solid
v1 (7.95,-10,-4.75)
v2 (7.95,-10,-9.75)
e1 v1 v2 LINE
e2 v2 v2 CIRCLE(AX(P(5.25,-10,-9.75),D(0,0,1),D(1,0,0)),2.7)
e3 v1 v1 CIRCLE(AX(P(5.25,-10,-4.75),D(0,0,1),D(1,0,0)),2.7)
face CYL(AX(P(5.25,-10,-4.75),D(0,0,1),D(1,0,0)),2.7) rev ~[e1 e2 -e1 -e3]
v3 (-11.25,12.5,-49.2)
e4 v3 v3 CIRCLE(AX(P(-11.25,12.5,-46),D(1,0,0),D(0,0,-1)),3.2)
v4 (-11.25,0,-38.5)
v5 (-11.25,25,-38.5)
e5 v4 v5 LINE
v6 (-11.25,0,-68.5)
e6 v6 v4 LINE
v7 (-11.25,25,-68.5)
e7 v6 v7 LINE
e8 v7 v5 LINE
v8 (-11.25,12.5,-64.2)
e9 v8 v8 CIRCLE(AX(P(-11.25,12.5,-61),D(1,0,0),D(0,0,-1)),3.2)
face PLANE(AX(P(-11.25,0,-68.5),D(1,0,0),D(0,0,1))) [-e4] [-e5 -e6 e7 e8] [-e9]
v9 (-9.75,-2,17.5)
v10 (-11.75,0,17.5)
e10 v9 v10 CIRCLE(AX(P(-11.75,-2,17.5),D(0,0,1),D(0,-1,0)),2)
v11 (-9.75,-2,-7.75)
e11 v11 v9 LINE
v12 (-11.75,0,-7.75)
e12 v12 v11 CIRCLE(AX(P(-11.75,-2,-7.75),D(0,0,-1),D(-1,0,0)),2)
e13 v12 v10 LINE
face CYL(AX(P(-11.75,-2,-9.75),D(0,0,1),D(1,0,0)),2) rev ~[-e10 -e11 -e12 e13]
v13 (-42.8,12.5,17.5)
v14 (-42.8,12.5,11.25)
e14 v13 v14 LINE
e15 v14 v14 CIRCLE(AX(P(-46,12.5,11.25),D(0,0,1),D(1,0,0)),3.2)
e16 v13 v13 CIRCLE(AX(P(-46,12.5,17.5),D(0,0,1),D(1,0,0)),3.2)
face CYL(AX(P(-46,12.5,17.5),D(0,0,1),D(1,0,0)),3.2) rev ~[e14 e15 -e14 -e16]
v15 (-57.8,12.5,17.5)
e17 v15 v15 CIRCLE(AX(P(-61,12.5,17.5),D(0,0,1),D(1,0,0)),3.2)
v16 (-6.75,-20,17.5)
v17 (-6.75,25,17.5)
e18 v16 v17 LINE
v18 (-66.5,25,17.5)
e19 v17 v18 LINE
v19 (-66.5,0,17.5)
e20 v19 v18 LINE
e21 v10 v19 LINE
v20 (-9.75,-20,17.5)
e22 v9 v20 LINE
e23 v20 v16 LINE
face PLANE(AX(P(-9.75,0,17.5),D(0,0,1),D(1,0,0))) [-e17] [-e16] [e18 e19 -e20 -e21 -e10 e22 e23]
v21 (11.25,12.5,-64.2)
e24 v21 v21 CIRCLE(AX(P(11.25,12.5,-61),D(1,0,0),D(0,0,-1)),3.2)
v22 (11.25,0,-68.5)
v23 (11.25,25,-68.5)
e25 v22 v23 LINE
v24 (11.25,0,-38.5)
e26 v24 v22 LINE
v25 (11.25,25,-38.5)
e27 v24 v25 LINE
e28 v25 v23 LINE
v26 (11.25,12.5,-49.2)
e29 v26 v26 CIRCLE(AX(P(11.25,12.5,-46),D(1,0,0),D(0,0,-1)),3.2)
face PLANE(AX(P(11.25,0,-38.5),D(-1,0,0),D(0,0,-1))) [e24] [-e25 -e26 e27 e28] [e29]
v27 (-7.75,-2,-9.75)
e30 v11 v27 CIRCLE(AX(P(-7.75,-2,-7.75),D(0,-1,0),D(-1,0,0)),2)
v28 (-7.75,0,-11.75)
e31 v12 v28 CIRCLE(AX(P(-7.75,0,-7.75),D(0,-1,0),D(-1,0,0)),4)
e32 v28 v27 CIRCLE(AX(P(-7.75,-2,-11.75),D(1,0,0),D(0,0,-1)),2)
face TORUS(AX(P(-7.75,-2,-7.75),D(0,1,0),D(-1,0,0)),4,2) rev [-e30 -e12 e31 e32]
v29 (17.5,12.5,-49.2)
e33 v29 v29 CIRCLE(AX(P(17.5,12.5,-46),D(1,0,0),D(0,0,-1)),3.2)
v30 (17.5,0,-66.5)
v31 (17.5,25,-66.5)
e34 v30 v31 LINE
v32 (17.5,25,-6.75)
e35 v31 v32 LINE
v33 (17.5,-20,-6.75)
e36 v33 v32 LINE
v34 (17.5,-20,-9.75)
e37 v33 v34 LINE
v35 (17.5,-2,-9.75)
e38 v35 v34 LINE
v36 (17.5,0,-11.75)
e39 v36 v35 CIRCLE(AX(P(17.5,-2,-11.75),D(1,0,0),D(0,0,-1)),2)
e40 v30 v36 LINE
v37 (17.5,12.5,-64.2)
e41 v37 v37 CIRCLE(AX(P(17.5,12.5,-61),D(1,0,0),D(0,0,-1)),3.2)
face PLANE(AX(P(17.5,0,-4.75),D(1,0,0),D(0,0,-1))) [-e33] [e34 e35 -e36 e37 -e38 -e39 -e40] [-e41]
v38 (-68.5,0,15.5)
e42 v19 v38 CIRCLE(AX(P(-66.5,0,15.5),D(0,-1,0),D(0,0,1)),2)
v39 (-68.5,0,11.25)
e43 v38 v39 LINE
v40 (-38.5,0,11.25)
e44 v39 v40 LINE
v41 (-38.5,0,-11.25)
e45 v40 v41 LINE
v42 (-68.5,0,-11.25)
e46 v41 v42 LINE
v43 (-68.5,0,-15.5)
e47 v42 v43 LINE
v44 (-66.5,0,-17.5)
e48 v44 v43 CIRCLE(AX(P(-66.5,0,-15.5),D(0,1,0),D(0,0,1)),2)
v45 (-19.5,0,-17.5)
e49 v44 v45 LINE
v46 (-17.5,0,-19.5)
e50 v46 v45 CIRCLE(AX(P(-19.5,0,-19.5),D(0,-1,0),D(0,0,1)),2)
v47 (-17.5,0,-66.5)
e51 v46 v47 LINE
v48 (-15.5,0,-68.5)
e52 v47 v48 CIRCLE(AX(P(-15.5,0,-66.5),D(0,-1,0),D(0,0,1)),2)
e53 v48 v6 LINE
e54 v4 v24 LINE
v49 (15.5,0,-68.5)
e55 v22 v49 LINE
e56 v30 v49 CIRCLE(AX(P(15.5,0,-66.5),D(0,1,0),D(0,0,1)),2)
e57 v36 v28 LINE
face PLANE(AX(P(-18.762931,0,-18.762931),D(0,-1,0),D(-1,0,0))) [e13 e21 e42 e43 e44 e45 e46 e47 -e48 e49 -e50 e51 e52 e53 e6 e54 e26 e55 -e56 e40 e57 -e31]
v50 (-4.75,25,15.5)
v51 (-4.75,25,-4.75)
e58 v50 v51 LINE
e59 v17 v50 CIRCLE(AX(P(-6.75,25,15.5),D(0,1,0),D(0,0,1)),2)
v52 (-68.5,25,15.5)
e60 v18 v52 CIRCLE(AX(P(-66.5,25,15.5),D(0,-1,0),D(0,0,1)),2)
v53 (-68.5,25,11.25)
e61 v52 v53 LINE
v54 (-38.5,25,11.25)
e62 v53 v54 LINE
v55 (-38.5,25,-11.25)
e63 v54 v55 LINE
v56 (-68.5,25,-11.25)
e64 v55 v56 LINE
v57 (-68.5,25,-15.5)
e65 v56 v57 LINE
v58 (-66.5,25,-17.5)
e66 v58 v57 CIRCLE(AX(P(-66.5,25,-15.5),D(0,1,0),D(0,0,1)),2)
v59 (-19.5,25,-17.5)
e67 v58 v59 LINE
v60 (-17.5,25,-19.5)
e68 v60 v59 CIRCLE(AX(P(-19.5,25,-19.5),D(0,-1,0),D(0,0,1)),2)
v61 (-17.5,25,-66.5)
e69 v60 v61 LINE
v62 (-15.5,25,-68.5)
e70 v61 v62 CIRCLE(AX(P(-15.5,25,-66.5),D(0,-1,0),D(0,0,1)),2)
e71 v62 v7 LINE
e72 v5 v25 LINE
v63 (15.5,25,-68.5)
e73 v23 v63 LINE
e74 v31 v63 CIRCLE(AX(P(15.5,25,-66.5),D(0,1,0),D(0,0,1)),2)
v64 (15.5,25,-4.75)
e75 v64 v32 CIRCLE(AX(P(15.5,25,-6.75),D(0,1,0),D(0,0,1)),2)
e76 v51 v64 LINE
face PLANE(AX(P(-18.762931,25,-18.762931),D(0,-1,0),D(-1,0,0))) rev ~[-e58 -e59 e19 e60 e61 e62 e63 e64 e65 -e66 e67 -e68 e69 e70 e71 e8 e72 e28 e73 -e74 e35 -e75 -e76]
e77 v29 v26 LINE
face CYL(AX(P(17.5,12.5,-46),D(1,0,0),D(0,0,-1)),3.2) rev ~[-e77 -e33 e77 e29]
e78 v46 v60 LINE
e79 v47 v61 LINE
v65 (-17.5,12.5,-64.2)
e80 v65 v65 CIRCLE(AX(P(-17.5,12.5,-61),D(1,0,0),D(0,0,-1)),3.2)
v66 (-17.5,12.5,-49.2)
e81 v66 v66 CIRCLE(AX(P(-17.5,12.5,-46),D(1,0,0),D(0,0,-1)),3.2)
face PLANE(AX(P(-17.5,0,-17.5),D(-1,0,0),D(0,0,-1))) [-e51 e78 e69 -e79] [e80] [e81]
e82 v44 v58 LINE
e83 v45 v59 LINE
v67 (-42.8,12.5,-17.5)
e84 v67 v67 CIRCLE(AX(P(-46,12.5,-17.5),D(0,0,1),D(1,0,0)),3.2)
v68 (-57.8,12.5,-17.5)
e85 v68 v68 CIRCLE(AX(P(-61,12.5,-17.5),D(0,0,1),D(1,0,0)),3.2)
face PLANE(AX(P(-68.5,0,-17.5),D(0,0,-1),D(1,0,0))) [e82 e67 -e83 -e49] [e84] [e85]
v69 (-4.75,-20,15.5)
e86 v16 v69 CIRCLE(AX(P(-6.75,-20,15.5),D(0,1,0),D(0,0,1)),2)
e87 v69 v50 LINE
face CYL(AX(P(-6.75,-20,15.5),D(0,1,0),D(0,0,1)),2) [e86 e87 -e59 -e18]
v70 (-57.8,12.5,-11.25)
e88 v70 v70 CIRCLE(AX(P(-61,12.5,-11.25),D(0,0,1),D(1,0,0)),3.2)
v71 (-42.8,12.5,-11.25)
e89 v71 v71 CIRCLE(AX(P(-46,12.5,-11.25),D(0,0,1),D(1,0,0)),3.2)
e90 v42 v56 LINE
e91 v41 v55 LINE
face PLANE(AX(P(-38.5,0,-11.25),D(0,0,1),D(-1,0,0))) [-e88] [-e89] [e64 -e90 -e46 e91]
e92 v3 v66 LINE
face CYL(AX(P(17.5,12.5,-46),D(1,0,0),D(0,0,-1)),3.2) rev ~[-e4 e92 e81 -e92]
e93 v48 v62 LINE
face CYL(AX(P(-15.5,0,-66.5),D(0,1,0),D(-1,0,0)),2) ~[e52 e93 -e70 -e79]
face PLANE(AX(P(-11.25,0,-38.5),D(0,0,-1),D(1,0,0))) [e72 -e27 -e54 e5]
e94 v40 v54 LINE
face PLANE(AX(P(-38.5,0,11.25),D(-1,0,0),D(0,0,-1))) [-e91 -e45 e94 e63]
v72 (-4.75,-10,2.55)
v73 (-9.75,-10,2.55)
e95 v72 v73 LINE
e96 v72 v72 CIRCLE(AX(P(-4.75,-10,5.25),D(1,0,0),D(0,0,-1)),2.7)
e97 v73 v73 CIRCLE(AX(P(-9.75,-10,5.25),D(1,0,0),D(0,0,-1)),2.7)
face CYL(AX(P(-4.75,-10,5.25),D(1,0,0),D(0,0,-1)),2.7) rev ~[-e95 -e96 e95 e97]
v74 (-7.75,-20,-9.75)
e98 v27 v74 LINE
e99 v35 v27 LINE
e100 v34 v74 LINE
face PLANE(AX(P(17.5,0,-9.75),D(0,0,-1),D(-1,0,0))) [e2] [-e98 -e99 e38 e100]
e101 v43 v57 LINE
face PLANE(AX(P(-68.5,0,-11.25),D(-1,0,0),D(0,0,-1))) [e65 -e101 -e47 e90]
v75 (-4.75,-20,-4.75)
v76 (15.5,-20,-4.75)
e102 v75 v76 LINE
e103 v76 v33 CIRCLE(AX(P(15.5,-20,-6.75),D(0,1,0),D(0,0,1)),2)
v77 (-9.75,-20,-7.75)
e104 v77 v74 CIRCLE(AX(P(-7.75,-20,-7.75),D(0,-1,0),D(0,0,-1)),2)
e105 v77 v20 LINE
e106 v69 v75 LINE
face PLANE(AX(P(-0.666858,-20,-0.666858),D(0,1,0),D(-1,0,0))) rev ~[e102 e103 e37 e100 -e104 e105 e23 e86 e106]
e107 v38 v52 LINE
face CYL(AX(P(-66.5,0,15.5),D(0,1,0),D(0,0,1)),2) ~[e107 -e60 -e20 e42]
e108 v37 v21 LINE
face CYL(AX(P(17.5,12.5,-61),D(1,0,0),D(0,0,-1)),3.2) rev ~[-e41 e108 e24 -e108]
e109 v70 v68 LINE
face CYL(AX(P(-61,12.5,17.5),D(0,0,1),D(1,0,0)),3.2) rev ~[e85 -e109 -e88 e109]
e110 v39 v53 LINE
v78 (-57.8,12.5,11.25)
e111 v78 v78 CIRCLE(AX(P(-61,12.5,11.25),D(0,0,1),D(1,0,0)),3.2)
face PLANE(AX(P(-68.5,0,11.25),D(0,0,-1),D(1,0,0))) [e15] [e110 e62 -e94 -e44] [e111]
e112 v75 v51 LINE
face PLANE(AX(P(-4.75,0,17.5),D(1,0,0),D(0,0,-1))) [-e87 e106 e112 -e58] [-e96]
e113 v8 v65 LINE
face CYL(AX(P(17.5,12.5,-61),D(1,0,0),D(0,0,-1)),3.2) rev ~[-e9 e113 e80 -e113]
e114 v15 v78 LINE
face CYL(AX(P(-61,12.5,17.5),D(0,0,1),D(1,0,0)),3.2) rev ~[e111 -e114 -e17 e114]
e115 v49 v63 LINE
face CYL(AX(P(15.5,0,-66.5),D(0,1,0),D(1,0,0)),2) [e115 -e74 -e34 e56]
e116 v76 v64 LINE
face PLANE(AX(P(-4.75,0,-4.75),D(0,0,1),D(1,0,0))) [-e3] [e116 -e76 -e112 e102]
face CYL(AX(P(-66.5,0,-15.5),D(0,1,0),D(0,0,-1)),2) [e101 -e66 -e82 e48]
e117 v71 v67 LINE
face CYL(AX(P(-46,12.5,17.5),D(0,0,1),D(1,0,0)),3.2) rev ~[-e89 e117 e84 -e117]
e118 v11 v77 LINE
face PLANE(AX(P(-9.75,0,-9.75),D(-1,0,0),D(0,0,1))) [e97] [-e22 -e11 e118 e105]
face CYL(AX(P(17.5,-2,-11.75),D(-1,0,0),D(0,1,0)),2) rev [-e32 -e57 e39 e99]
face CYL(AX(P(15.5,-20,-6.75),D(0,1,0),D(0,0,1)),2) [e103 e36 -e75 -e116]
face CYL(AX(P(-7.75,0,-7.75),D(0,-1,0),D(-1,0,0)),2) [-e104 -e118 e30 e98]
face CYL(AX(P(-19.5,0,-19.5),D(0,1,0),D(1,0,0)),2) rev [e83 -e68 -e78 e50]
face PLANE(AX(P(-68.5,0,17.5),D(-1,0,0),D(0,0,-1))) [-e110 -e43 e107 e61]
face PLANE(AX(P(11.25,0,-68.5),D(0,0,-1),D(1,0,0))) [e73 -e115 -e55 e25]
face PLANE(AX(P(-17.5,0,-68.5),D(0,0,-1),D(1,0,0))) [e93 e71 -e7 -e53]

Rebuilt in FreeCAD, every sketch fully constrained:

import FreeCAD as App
import Part
import Sketcher
Q = App.Units.Quantity


def edges_at(feature, points):
    """Names of the edges that pass closest to the given points."""
    edges = feature.Shape.Edges
    near = lambda p: min(range(len(edges)), key=lambda i: edges[i].distToShape(Part.Vertex(*p))[0])
    return sorted({f"Edge{near(p) + 1}" for p in points})


def add_polygon(sketch, points):
    """Adds a closed chain of lines whose ends are joined by coincident constraints."""
    first, n = sketch.GeometryCount, len(points)
    for a, b in zip(points, points[1:] + points[:1]):
        sketch.addGeometry(Part.LineSegment(App.Vector(*a, 0), App.Vector(*b, 0)), False)
    for i in range(n):
        sketch.addConstraint(Sketcher.Constraint("Coincident", first + i, 2, first + (i + 1) % n, 1))

doc = App.newDocument("Part")
body = doc.addObject("PartDesign::Body", "Body")

# Sketch on XZ plane
sketch1 = body.newObject("Sketcher::SketchObject", "Sketch")
sketch1.AttachmentSupport = (doc.getObject("XZ_Plane"), [""])
sketch1.MapMode = "FlatFace"
add_polygon(sketch1, [(-11.25, -68.5), (-17.5, -68.5), (-17.5, -17.5), (-68.5, -17.5), (-68.5, -11.25), (-38.5, -11.25), (-38.5, 11.25), (-68.5, 11.25), (-68.5, 17.5), (17.5, 17.5), (17.5, -68.5), (11.25, -68.5), (11.25, -38.5), (-11.25, -38.5)])  # lines 0-13
sketch1.addConstraint(Sketcher.Constraint("Horizontal", 0))
sketch1.addConstraint(Sketcher.Constraint("Vertical", 1))
sketch1.addConstraint(Sketcher.Constraint("Horizontal", 2))
sketch1.addConstraint(Sketcher.Constraint("Vertical", 3))
sketch1.addConstraint(Sketcher.Constraint("Horizontal", 4))
sketch1.addConstraint(Sketcher.Constraint("Vertical", 5))
sketch1.addConstraint(Sketcher.Constraint("Horizontal", 6))
sketch1.addConstraint(Sketcher.Constraint("Vertical", 7))
sketch1.addConstraint(Sketcher.Constraint("Horizontal", 8))
sketch1.addConstraint(Sketcher.Constraint("Vertical", 9))
sketch1.addConstraint(Sketcher.Constraint("Horizontal", 10))
sketch1.addConstraint(Sketcher.Constraint("Vertical", 11))
sketch1.addConstraint(Sketcher.Constraint("Horizontal", 12))
sketch1.addConstraint(Sketcher.Constraint("Vertical", 13))
sketch1.addConstraint(Sketcher.Constraint("Symmetric", 1, 2, 8, 2, -1, 1))
sketch1.addConstraint(Sketcher.Constraint("Symmetric", 10, 2, 13, 2, -2))
sketch1.addConstraint(Sketcher.Constraint("Symmetric", 3, 2, 6, 2, -1))
sketch1.addConstraint(Sketcher.Constraint("Equal", 2, 1))
sketch1.addConstraint(Sketcher.Constraint("Equal", 10, 3))
sketch1.addConstraint(Sketcher.Constraint("Equal", 12, 5))
sketch1.addConstraint(Sketcher.Constraint("Equal", 6, 11))
sketch1.addConstraint(Sketcher.Constraint("DistanceX", 2, 2, 2, 1, Q("51 mm")))
sketch1.addConstraint(Sketcher.Constraint("DistanceX", 4, 1, 4, 2, Q("30 mm")))
sketch1.addConstraint(Sketcher.Constraint("DistanceX", 8, 1, 8, 2, Q("86 mm")))
sketch1.addConstraint(Sketcher.Constraint("DistanceX", 12, 2, 12, 1, Q("22.5 mm")))
pad1 = body.newObject("PartDesign::Pad", "Pad")
pad1.Profile = sketch1
pad1.Length = 25
pad1.Reversed = True

# Sketch on YZ plane
sketch2 = body.newObject("Sketcher::SketchObject", "Sketch001")
sketch2.AttachmentSupport = (doc.getObject("YZ_Plane"), [""])
sketch2.MapMode = "FlatFace"
sketch2.AttachmentOffset = App.Placement(App.Vector(0, 0, 17.5), App.Rotation())
sketch2.addGeometry(Part.Circle(App.Vector(12.5, -61, 0), App.Vector(0, 0, 1), 3.2), False)
sketch2.addGeometry(Part.Circle(App.Vector(12.5, -46, 0), App.Vector(0, 0, 1), 3.2), False)
sketch2.addConstraint(Sketcher.Constraint("Equal", 0, 1))
sketch2.addConstraint(Sketcher.Constraint("Vertical", 0, 3, 1, 3))
sketch2.addConstraint(Sketcher.Constraint("Diameter", 0, Q("6.4 mm")))
sketch2.addConstraint(Sketcher.Constraint("DistanceY", 0, 3, -1, 1, Q("61 mm")))
sketch2.addConstraint(Sketcher.Constraint("DistanceY", 1, 3, -1, 1, Q("46 mm")))
sketch2.addConstraint(Sketcher.Constraint("DistanceX", -1, 1, 0, 3, Q("12.5 mm")))
pocket1 = body.newObject("PartDesign::Pocket", "Pocket")
pocket1.Profile = sketch2
pocket1.Length = 35

# Sketch on XY plane
sketch3 = body.newObject("Sketcher::SketchObject", "Sketch002")
sketch3.AttachmentSupport = (doc.getObject("XY_Plane"), [""])
sketch3.MapMode = "FlatFace"
sketch3.AttachmentOffset = App.Placement(App.Vector(0, 0, 17.5), App.Rotation())
sketch3.addGeometry(Part.Circle(App.Vector(-61, 12.5, 0), App.Vector(0, 0, 1), 3.2), False)
sketch3.addGeometry(Part.Circle(App.Vector(-46, 12.5, 0), App.Vector(0, 0, 1), 3.2), False)
sketch3.addConstraint(Sketcher.Constraint("Equal", 0, 1))
sketch3.addConstraint(Sketcher.Constraint("Horizontal", 0, 3, 1, 3))
sketch3.addConstraint(Sketcher.Constraint("Diameter", 0, Q("6.4 mm")))
sketch3.addConstraint(Sketcher.Constraint("DistanceX", 0, 3, -1, 1, Q("61 mm")))
sketch3.addConstraint(Sketcher.Constraint("DistanceX", 1, 3, -1, 1, Q("46 mm")))
sketch3.addConstraint(Sketcher.Constraint("DistanceY", -1, 1, 0, 3, Q("12.5 mm")))
pocket2 = body.newObject("PartDesign::Pocket", "Pocket001")
pocket2.Profile = sketch3
pocket2.Length = 35

# Sketch on XZ plane
sketch4 = body.newObject("Sketcher::SketchObject", "Sketch003")
sketch4.AttachmentSupport = (doc.getObject("XZ_Plane"), [""])
sketch4.MapMode = "FlatFace"
sketch4.AttachmentOffset = App.Placement(App.Vector(0, 0, -25), App.Rotation())
add_polygon(sketch4, [(-4.75, -4.75), (-4.75, 17.5), (17.5, 17.5), (17.5, -4.75)])  # lines 0-3
sketch4.addConstraint(Sketcher.Constraint("Vertical", 0))
sketch4.addConstraint(Sketcher.Constraint("Horizontal", 1))
sketch4.addConstraint(Sketcher.Constraint("Vertical", 2))
sketch4.addConstraint(Sketcher.Constraint("Horizontal", 3))
sketch4.addConstraint(Sketcher.Constraint("Equal", 3, 0))
sketch4.addConstraint(Sketcher.Constraint("DistanceX", 1, 1, 1, 2, Q("22.25 mm")))
sketch4.addConstraint(Sketcher.Constraint("DistanceY", -1, 1, 0, 2, Q("17.5 mm")))
sketch4.addConstraint(Sketcher.Constraint("DistanceX", -1, 1, 1, 2, Q("17.5 mm")))
pocket3 = body.newObject("PartDesign::Pocket", "Pocket002")
pocket3.Profile = sketch4
pocket3.Length = 25
pocket3.Reversed = True

# Sketch on XZ plane
sketch5 = body.newObject("Sketcher::SketchObject", "Sketch004")
sketch5.AttachmentSupport = (doc.getObject("XZ_Plane"), [""])
sketch5.MapMode = "FlatFace"
add_polygon(sketch5, [(-4.75, 17.5), (-9.75, 17.5), (-9.75, -9.75), (17.5, -9.75), (17.5, -4.75), (-4.75, -4.75)])  # lines 0-5
sketch5.addConstraint(Sketcher.Constraint("Horizontal", 0))
sketch5.addConstraint(Sketcher.Constraint("Vertical", 1))
sketch5.addConstraint(Sketcher.Constraint("Horizontal", 2))
sketch5.addConstraint(Sketcher.Constraint("Vertical", 3))
sketch5.addConstraint(Sketcher.Constraint("Horizontal", 4))
sketch5.addConstraint(Sketcher.Constraint("Vertical", 5))
sketch5.addConstraint(Sketcher.Constraint("Equal", 2, 1))
sketch5.addConstraint(Sketcher.Constraint("Equal", 0, 3))
sketch5.addConstraint(Sketcher.Constraint("DistanceX", 0, 2, 0, 1, Q("5 mm")))
sketch5.addConstraint(Sketcher.Constraint("DistanceX", 2, 1, 2, 2, Q("27.25 mm")))
sketch5.addConstraint(Sketcher.Constraint("DistanceY", -1, 1, 0, 2, Q("17.5 mm")))
sketch5.addConstraint(Sketcher.Constraint("DistanceX", -1, 1, 2, 2, Q("17.5 mm")))
pad2 = body.newObject("PartDesign::Pad", "Pad001")
pad2.Profile = sketch5
pad2.Length = 20

# Sketch on YZ plane
sketch6 = body.newObject("Sketcher::SketchObject", "Sketch005")
sketch6.AttachmentSupport = (doc.getObject("YZ_Plane"), [""])
sketch6.MapMode = "FlatFace"
sketch6.AttachmentOffset = App.Placement(App.Vector(0, 0, -4.75), App.Rotation())
sketch6.addGeometry(Part.Circle(App.Vector(-10, 5.25, 0), App.Vector(0, 0, 1), 2.7), False)
sketch6.addConstraint(Sketcher.Constraint("Diameter", 0, Q("5.4 mm")))
sketch6.addConstraint(Sketcher.Constraint("DistanceX", 0, 3, -1, 1, Q("10 mm")))
sketch6.addConstraint(Sketcher.Constraint("DistanceY", -1, 1, 0, 3, Q("5.25 mm")))
pocket4 = body.newObject("PartDesign::Pocket", "Pocket003")
pocket4.Profile = sketch6
pocket4.Length = 5

# Sketch on XY plane
sketch7 = body.newObject("Sketcher::SketchObject", "Sketch006")
sketch7.AttachmentSupport = (doc.getObject("XY_Plane"), [""])
sketch7.MapMode = "FlatFace"
sketch7.AttachmentOffset = App.Placement(App.Vector(0, 0, -4.75), App.Rotation())
sketch7.addGeometry(Part.Circle(App.Vector(5.25, -10, 0), App.Vector(0, 0, 1), 2.7), False)
sketch7.addConstraint(Sketcher.Constraint("Diameter", 0, Q("5.4 mm")))
sketch7.addConstraint(Sketcher.Constraint("DistanceY", 0, 3, -1, 1, Q("10 mm")))
sketch7.addConstraint(Sketcher.Constraint("DistanceX", -1, 1, 0, 3, Q("5.25 mm")))
pocket5 = body.newObject("PartDesign::Pocket", "Pocket004")
pocket5.Profile = sketch7
pocket5.Length = 5
doc.recompute()

fillet = body.newObject("PartDesign::Fillet", "Fillet")
fillet.Base = (pocket5, edges_at(pocket5, [
    (-17.5, 12.5, -68.5),
    (17.5, 12.5, -68.5),
    (-68.5, 12.5, 17.5),
    (-68.5, 12.5, -17.5),
    (-17.5, 12.5, -17.5),
    (-4.75, 2.5, 17.5),
    (17.5, 2.5, -4.75),
    (-9.75, 0, 3.875),
    (3.875, 0, -9.75),
    (-9.75, -10, -9.75),
]))
fillet.Radius = 2

doc.recompute()
